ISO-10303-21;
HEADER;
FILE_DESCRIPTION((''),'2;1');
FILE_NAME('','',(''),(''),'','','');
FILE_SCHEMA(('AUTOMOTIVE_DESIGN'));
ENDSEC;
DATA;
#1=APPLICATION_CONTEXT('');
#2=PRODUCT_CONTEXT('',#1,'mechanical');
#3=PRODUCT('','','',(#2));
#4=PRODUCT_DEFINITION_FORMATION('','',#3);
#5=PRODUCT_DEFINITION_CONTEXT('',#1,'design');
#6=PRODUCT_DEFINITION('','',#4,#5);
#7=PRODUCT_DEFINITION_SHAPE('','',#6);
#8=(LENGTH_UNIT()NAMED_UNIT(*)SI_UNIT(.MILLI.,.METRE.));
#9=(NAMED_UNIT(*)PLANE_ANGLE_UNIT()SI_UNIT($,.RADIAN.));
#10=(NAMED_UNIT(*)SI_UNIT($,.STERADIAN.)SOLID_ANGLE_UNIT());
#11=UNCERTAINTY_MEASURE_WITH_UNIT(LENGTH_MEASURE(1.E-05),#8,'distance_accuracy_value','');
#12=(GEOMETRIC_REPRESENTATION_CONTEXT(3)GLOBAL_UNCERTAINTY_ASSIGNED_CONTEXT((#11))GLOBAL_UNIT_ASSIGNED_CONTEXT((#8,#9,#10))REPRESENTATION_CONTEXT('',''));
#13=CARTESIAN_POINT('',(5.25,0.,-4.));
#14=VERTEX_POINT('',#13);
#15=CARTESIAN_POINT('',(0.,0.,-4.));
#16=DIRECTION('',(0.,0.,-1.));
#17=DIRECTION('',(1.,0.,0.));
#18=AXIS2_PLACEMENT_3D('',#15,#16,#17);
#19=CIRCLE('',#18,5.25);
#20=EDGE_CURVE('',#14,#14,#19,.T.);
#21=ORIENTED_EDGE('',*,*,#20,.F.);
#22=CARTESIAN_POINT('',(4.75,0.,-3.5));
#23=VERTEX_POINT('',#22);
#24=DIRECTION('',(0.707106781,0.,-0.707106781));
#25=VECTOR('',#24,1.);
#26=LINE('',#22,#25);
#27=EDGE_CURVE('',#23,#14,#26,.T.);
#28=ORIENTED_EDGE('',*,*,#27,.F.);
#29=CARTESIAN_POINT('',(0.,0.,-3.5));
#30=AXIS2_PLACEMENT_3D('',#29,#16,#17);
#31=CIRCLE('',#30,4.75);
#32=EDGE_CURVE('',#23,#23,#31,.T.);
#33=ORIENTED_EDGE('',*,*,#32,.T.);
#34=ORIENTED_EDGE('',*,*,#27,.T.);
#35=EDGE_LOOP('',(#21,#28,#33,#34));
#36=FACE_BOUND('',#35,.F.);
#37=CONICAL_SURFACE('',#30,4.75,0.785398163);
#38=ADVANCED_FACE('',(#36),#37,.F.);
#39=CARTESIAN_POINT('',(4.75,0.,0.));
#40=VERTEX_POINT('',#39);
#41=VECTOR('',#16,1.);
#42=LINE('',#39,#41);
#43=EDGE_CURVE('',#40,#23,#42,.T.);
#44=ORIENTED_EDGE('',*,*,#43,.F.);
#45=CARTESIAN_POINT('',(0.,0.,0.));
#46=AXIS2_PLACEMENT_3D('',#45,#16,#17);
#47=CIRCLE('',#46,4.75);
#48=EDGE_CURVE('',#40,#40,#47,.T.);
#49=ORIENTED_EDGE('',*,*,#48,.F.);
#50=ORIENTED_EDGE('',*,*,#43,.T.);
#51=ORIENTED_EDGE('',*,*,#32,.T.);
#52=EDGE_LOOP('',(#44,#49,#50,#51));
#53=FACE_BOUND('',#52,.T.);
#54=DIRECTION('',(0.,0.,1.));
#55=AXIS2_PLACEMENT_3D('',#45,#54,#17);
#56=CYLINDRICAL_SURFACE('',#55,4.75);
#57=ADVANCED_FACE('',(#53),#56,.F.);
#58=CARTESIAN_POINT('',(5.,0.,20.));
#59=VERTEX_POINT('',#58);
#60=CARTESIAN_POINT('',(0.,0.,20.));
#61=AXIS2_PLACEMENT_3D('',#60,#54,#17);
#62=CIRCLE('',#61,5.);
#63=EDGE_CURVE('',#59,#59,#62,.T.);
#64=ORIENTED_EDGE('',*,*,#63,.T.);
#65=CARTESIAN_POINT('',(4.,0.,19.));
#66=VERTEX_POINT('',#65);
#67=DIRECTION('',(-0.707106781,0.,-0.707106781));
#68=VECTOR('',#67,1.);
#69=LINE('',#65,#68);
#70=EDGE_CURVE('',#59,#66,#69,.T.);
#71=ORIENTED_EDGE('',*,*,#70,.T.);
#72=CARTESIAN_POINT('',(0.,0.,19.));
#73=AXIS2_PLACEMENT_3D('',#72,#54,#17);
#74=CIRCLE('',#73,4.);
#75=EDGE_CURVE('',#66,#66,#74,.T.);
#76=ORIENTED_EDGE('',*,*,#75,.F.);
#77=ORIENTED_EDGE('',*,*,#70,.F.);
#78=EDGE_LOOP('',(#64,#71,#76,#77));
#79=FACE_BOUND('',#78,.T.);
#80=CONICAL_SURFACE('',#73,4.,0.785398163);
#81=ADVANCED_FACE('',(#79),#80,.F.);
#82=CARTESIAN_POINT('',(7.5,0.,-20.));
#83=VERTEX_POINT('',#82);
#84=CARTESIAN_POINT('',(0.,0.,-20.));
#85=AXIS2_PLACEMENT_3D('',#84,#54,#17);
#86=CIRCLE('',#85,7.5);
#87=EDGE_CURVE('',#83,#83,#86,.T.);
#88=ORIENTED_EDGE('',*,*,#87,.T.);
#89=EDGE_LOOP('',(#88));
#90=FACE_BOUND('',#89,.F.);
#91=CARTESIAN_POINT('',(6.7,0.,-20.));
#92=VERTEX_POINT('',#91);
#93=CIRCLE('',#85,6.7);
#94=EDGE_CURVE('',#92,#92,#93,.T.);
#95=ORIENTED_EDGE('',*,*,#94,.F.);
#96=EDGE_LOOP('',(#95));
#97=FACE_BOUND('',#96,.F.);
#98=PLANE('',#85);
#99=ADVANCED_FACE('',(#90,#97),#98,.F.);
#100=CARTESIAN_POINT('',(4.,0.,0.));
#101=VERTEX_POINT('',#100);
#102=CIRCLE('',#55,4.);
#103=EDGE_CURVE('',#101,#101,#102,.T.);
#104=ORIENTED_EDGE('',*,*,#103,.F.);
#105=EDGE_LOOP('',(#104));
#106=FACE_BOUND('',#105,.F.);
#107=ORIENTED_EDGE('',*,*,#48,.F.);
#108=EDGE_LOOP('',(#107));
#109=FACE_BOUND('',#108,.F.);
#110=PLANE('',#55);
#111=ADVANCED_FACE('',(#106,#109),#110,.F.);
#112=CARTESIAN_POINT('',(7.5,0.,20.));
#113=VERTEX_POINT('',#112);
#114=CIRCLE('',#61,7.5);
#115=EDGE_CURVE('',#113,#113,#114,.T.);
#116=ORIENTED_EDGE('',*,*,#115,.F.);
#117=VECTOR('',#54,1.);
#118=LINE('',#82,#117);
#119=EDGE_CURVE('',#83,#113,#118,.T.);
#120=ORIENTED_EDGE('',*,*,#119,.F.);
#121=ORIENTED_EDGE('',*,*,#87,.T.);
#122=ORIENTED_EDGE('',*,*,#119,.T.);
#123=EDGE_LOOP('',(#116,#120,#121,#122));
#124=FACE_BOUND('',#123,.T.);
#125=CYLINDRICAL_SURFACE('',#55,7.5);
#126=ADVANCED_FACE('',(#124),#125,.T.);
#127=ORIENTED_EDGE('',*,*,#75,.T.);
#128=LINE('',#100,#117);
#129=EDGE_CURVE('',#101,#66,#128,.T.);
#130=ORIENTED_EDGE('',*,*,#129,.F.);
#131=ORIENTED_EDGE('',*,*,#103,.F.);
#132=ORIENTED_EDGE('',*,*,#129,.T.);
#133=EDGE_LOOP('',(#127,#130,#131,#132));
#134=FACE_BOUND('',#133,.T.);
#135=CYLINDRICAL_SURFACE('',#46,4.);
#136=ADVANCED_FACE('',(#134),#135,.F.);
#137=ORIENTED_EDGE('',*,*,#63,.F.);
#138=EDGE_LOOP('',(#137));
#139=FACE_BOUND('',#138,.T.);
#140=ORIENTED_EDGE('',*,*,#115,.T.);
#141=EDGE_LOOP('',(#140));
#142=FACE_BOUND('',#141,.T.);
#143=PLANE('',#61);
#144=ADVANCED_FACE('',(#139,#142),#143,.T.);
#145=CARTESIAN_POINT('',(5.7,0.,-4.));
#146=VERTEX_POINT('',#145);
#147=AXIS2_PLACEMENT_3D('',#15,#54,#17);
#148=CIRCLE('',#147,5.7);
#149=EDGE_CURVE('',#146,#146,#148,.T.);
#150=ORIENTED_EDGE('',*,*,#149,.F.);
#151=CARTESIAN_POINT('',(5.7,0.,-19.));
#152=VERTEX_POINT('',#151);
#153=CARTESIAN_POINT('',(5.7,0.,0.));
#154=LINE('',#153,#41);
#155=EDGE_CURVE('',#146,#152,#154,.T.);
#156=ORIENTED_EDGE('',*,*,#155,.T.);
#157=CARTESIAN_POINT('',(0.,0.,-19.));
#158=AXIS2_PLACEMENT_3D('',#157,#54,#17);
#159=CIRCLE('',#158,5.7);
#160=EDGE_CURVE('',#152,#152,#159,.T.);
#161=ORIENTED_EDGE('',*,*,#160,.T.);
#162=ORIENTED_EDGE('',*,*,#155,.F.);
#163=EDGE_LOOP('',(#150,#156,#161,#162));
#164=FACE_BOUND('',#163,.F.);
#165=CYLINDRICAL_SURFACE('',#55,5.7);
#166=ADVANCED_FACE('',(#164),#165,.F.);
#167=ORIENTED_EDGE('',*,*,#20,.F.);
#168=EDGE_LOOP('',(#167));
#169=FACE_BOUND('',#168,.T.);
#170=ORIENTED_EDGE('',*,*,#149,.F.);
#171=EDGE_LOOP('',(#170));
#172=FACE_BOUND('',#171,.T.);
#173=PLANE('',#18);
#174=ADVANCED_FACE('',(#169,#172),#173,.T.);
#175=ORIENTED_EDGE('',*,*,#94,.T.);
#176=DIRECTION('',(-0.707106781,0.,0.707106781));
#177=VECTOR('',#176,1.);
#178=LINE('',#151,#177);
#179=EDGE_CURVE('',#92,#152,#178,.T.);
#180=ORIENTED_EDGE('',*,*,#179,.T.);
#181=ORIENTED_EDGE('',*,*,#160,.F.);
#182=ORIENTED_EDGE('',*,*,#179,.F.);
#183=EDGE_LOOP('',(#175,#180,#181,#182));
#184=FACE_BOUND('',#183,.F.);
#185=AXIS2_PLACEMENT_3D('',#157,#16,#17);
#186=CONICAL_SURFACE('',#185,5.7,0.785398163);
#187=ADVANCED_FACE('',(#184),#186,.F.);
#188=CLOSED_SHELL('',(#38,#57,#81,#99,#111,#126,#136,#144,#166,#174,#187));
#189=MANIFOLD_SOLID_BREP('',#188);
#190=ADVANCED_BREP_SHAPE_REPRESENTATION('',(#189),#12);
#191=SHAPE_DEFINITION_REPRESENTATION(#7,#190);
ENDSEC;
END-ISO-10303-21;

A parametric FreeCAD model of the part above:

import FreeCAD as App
import Part
import Sketcher
from FreeCAD import Vector


def edges_at(feature, points):
    """Names of the edges that pass closest to the given points."""
    edges = feature.Shape.Edges
    near = lambda p: min(range(len(edges)), key=lambda i: edges[i].distToShape(Part.Vertex(*p))[0])
    return sorted({f"Edge{near(p) + 1}" for p in points})

doc = App.newDocument("Part")
body = doc.addObject("PartDesign::Body", "Body")

# Sketch on XY plane
sketch1 = doc.addObject("Sketcher::SketchObject", "Sketch")
body.addObject(sketch1)
sketch1.AttachmentSupport = (doc.XY_Plane, [""])
sketch1.MapMode = "FlatFace"
sketch1.addGeometry([
    Part.Circle(Vector(0, 0, 0), Vector(0, 0, 1), 7.5),
    Part.Circle(Vector(0, 0, 0), Vector(0, 0, 1), 4),
], False)
sketch1.addConstraint([
    Sketcher.Constraint("Coincident", 0, 3, -1, 1),
    Sketcher.Constraint("Coincident", 1, 3, -1, 1),
    Sketcher.Constraint("Diameter", 0, 15.0),
    Sketcher.Constraint("Diameter", 1, 8.0),
])
pad1 = doc.addObject("PartDesign::Pad", "Pad")
body.addObject(pad1)
pad1.Profile = sketch1
pad1.Length = 20

# Sketch on XY plane
sketch2 = doc.addObject("Sketcher::SketchObject", "Sketch001")
body.addObject(sketch2)
sketch2.AttachmentSupport = (doc.XY_Plane, [""])
sketch2.MapMode = "FlatFace"
sketch2.addGeometry([
    Part.Circle(Vector(0, 0, 0), Vector(0, 0, 1), 8),
    Part.Circle(Vector(0, 0, 0), Vector(0, 0, 1), 6),
], False)
sketch2.addConstraint([
    Sketcher.Constraint("Coincident", 0, 3, -1, 1),
    Sketcher.Constraint("Coincident", 1, 3, -1, 1),
    Sketcher.Constraint("Diameter", 0, 15.0),
    Sketcher.Constraint("Diameter", 1, 11.4),
])
pad2 = doc.addObject("PartDesign::Pad", "Pad001")
body.addObject(pad2)
pad2.Profile = sketch2
pad2.Length = 20
pad2.Reversed = True
doc.recompute()

chamfer = doc.addObject("PartDesign::Chamfer", "Chamfer")
body.addObject(chamfer)
chamfer.Base = (pad2, edges_at(pad2, [(-4, 0, 20)]))
chamfer.Size = 1
doc.recompute()

chamfer2 = doc.addObject("PartDesign::Chamfer", "Chamfer001")
body.addObject(chamfer2)
chamfer2.Base = (chamfer, edges_at(chamfer, [(-5.7, 0, -20)]))
chamfer2.Size = 1

# Sketch on XY plane
sketch3 = doc.addObject("Sketcher::SketchObject", "Sketch002")
body.addObject(sketch3)
sketch3.AttachmentSupport = (doc.XY_Plane, [""])
sketch3.MapMode = "FlatFace"
sketch3.addGeometry([
    Part.Circle(Vector(0, 0, 0), Vector(0, 0, 1), 5.8),
    Part.Circle(Vector(0, 0, 0), Vector(0, 0, 1), 4.8),
], False)
sketch3.addConstraint([
    Sketcher.Constraint("Coincident", 0, 3, -1, 1),
    Sketcher.Constraint("Coincident", 1, 3, -1, 1),
    Sketcher.Constraint("Diameter", 0, 11.5),
    Sketcher.Constraint("Diameter", 1, 9.5),
])
pad3 = doc.addObject("PartDesign::Pad", "Pad002")
body.addObject(pad3)
pad3.Profile = sketch3
pad3.Length = 4
pad3.Reversed = True
doc.recompute()

chamfer3 = doc.addObject("PartDesign::Chamfer", "Chamfer002")
body.addObject(chamfer3)
chamfer3.Base = (pad3, edges_at(pad3, [(-4.75, 0, -4)]))
chamfer3.Size = 0.5

doc.recompute()
